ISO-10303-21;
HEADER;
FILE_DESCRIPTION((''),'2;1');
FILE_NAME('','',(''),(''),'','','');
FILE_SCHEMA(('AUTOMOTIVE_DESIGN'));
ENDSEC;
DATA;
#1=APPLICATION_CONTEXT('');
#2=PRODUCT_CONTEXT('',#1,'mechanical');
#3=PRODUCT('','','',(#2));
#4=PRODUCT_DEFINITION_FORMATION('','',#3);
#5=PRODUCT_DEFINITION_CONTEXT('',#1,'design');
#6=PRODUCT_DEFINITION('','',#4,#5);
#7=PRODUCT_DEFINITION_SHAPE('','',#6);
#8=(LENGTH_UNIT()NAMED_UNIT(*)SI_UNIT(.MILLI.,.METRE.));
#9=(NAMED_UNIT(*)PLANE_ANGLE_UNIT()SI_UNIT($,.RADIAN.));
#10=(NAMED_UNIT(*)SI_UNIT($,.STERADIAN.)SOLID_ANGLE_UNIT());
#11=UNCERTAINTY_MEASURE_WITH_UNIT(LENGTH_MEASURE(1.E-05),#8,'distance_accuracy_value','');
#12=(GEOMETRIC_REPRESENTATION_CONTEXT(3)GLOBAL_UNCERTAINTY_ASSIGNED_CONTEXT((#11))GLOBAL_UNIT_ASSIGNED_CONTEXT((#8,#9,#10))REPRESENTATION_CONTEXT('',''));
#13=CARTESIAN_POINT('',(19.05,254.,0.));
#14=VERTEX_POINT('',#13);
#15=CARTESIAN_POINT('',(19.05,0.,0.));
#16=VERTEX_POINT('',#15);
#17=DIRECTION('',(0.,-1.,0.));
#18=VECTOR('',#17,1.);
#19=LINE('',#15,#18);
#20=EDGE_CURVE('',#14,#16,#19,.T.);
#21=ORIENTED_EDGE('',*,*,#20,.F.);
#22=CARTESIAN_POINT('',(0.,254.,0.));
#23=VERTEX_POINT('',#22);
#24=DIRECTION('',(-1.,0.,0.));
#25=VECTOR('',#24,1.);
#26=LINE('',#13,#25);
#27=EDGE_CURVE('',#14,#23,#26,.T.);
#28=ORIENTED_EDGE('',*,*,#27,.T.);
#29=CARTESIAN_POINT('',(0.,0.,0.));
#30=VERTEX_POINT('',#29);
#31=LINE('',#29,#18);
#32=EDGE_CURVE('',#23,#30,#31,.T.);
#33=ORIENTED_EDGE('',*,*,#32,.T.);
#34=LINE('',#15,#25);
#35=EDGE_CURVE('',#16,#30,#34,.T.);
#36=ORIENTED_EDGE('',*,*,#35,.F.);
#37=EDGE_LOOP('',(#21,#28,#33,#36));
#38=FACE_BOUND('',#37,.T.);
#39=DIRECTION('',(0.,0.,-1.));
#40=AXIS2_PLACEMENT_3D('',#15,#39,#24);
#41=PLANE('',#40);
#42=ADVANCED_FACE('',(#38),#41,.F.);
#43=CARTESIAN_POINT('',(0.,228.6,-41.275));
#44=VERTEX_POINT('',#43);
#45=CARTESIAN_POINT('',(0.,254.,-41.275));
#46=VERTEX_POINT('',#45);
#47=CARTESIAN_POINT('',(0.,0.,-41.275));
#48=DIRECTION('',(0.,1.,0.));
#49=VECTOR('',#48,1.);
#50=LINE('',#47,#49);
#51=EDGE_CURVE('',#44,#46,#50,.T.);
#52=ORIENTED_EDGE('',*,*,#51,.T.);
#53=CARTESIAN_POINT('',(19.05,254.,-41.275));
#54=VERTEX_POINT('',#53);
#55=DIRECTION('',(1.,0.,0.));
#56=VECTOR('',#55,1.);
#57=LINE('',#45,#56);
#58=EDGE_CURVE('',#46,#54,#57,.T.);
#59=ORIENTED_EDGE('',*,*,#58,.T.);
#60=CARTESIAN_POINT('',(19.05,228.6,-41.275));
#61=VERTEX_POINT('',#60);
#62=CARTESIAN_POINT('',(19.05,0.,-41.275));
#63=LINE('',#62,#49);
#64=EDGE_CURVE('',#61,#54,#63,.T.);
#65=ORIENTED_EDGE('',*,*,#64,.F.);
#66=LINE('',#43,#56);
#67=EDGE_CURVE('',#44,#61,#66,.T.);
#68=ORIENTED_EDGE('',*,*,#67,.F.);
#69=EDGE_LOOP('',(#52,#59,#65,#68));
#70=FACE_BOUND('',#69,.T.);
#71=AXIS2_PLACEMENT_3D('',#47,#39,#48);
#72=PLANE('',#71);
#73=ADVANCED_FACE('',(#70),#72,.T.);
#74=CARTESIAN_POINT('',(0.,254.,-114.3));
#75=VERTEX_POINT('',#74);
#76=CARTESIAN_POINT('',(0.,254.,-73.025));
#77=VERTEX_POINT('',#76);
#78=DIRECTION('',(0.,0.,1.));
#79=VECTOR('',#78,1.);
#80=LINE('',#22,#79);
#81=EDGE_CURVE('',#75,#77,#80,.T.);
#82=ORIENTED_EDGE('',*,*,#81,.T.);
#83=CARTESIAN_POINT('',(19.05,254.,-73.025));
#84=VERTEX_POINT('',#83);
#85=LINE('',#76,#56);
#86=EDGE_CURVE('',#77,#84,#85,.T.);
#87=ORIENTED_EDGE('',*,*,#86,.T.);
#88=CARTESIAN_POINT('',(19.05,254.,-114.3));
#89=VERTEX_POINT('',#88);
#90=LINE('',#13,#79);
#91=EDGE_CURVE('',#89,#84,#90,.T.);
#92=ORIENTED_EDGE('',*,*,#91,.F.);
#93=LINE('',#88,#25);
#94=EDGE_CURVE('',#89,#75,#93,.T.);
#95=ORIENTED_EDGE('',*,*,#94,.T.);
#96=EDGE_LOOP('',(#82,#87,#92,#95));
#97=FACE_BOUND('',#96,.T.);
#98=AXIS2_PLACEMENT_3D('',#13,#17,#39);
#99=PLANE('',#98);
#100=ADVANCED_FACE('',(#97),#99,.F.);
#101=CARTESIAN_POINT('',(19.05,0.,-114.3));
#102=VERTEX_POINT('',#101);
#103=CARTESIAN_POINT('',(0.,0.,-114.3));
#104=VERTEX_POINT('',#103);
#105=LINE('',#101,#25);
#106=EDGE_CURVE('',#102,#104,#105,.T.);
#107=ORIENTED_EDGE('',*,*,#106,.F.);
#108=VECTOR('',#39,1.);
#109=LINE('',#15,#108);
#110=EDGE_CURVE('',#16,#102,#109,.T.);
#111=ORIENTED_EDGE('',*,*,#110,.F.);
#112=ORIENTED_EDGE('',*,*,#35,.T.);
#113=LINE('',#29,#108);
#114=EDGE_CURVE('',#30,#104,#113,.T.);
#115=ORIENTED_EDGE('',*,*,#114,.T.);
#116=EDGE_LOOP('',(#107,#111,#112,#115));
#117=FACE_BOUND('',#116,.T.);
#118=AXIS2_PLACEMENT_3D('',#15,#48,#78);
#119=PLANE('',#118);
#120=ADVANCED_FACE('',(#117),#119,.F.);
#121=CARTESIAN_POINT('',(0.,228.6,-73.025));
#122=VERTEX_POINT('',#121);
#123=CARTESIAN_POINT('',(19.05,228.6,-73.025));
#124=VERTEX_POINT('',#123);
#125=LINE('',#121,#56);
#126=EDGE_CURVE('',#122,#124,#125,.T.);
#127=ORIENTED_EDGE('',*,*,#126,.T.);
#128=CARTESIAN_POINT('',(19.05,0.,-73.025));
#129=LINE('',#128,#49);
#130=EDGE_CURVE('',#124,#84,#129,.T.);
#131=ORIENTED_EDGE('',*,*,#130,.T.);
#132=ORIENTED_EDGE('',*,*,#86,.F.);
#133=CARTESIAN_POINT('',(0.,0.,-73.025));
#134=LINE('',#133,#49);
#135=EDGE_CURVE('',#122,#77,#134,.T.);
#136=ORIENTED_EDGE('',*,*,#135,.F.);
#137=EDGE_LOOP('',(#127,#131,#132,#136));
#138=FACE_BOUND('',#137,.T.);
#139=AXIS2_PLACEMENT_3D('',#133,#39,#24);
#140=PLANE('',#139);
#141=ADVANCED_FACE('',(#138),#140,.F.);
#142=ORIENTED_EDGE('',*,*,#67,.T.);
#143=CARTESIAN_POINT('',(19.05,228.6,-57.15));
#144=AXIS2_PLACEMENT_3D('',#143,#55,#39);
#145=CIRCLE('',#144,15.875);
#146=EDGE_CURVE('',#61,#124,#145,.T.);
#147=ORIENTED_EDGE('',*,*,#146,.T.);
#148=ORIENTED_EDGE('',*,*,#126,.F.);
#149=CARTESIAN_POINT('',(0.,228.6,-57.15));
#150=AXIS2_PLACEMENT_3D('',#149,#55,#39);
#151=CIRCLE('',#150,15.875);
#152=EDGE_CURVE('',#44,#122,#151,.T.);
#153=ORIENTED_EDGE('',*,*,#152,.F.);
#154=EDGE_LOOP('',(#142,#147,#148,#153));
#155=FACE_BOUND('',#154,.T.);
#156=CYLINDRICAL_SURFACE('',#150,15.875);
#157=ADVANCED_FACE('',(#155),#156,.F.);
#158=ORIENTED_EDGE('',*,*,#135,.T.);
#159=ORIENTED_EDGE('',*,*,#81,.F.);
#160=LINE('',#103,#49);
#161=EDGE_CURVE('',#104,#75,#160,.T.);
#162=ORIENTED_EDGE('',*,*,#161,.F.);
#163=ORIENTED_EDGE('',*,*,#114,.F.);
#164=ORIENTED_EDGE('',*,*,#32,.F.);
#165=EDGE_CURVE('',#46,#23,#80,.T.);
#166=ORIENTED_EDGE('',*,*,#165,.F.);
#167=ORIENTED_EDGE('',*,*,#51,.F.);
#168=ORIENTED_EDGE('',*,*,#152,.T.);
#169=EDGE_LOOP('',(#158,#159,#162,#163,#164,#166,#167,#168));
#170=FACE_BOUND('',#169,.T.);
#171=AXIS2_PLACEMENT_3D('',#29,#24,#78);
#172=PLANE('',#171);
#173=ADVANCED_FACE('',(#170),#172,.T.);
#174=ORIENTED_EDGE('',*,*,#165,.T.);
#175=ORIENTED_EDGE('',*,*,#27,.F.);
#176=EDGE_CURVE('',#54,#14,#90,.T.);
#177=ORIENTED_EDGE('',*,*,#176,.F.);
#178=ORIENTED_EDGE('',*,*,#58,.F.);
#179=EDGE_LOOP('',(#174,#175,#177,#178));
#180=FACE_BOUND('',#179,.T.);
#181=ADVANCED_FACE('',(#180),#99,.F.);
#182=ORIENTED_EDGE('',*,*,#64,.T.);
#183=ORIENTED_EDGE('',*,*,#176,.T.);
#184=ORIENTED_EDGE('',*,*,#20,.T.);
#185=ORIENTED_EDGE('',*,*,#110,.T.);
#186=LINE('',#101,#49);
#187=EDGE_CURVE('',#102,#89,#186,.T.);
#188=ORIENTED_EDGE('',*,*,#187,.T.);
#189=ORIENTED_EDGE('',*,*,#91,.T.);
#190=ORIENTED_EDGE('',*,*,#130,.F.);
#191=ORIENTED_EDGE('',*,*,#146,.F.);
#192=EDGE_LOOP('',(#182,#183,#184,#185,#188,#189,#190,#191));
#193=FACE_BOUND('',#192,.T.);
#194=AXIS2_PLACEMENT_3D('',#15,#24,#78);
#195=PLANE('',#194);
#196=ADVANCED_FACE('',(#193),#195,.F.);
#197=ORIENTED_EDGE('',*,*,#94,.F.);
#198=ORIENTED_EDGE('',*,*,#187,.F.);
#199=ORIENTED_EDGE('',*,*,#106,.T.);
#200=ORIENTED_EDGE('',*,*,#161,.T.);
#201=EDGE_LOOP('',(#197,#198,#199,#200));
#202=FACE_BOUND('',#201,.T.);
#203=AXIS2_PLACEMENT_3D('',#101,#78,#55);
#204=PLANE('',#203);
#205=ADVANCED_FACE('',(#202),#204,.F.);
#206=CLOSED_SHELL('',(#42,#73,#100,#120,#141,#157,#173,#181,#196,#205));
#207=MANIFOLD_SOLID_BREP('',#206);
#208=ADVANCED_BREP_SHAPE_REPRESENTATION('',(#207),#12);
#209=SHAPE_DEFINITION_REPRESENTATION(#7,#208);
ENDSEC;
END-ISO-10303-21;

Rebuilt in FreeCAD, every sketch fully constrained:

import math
import FreeCAD as App
import Part
import Sketcher
Q = App.Units.Quantity

doc = App.newDocument("Part")
body = doc.addObject("PartDesign::Body", "Body")

# Sketch on YZ plane
sketch1 = body.newObject("Sketcher::SketchObject", "Sketch")
sketch1.AttachmentSupport = (doc.getObject("YZ_Plane"), [""])
sketch1.MapMode = "FlatFace"
sketch1.addGeometry([
    Part.LineSegment(App.Vector(254, 0, 0), App.Vector(0, 0, 0)),
    Part.LineSegment(App.Vector(0, 0, 0), App.Vector(0, -114.3, 0)),
    Part.LineSegment(App.Vector(0, -114.3, 0), App.Vector(254, -114.3, 0)),
    Part.LineSegment(App.Vector(254, -114.3, 0), App.Vector(254, 0, 0)),
], False)
sketch1.addConstraint([
    Sketcher.Constraint("Coincident", 0, 2, 1, 1),
    Sketcher.Constraint("Coincident", 1, 2, 2, 1),
    Sketcher.Constraint("Coincident", 2, 2, 3, 1),
    Sketcher.Constraint("Coincident", 3, 2, 0, 1),
    Sketcher.Constraint("Horizontal", 0),
    Sketcher.Constraint("Vertical", 1),
    Sketcher.Constraint("Horizontal", 2),
    Sketcher.Constraint("Vertical", 3),
    Sketcher.Constraint("Coincident", 0, 2, -1, 1),
    Sketcher.Constraint("DistanceX", 0, 2, 0, 1, Q("10 in")),
    Sketcher.Constraint("DistanceY", 1, 2, 1, 1, Q("4.5 in")),
])
pad1 = body.newObject("PartDesign::Pad", "Pad")
pad1.Profile = sketch1
pad1.Length = Q("0.75 in")

# Sketch on YZ plane
sketch2 = body.newObject("Sketcher::SketchObject", "Sketch001")
sketch2.AttachmentSupport = (doc.getObject("YZ_Plane"), [""])
sketch2.MapMode = "FlatFace"
sketch2.AttachmentOffset = App.Placement(App.Vector(0, 0, 0.75 * 25.4), App.Rotation())
sketch2.addGeometry([
    Part.LineSegment(App.Vector(254, -73.025, 0), App.Vector(254, -41.275, 0)),
    Part.LineSegment(App.Vector(254, -41.275, 0), App.Vector(228.6, -41.275, 0)),
    Part.ArcOfCircle(Part.Circle(App.Vector(228.6, -57.15, 0), App.Vector(0, 0, 1), 15.875), math.radians(90), math.radians(270)),
    Part.LineSegment(App.Vector(228.6, -73.025, 0), App.Vector(254, -73.025, 0)),
], False)
sketch2.addConstraint([
    Sketcher.Constraint("Coincident", 0, 2, 1, 1),
    Sketcher.Constraint("Tangent", 1, 2, 2, 1),
    Sketcher.Constraint("Tangent", 2, 2, 3, 1),
    Sketcher.Constraint("Coincident", 3, 2, 0, 1),
    Sketcher.Constraint("Vertical", 0),
    Sketcher.Constraint("Horizontal", 1),
    Sketcher.Constraint("Horizontal", 3),
    Sketcher.Constraint("DistanceX", 1, 2, 1, 1, Q("1 in")),
    Sketcher.Constraint("DistanceX", -1, 1, 2, 3, Q("9 in")),
    Sketcher.Constraint("Radius", 2, Q("0.625 in")),
    Sketcher.Constraint("DistanceY", 2, 3, -1, 1, Q("2.25 in")),
])
pocket1 = body.newObject("PartDesign::Pocket", "Pocket")
pocket1.Profile = sketch2
pocket1.Type = "ThroughAll"

doc.recompute()
